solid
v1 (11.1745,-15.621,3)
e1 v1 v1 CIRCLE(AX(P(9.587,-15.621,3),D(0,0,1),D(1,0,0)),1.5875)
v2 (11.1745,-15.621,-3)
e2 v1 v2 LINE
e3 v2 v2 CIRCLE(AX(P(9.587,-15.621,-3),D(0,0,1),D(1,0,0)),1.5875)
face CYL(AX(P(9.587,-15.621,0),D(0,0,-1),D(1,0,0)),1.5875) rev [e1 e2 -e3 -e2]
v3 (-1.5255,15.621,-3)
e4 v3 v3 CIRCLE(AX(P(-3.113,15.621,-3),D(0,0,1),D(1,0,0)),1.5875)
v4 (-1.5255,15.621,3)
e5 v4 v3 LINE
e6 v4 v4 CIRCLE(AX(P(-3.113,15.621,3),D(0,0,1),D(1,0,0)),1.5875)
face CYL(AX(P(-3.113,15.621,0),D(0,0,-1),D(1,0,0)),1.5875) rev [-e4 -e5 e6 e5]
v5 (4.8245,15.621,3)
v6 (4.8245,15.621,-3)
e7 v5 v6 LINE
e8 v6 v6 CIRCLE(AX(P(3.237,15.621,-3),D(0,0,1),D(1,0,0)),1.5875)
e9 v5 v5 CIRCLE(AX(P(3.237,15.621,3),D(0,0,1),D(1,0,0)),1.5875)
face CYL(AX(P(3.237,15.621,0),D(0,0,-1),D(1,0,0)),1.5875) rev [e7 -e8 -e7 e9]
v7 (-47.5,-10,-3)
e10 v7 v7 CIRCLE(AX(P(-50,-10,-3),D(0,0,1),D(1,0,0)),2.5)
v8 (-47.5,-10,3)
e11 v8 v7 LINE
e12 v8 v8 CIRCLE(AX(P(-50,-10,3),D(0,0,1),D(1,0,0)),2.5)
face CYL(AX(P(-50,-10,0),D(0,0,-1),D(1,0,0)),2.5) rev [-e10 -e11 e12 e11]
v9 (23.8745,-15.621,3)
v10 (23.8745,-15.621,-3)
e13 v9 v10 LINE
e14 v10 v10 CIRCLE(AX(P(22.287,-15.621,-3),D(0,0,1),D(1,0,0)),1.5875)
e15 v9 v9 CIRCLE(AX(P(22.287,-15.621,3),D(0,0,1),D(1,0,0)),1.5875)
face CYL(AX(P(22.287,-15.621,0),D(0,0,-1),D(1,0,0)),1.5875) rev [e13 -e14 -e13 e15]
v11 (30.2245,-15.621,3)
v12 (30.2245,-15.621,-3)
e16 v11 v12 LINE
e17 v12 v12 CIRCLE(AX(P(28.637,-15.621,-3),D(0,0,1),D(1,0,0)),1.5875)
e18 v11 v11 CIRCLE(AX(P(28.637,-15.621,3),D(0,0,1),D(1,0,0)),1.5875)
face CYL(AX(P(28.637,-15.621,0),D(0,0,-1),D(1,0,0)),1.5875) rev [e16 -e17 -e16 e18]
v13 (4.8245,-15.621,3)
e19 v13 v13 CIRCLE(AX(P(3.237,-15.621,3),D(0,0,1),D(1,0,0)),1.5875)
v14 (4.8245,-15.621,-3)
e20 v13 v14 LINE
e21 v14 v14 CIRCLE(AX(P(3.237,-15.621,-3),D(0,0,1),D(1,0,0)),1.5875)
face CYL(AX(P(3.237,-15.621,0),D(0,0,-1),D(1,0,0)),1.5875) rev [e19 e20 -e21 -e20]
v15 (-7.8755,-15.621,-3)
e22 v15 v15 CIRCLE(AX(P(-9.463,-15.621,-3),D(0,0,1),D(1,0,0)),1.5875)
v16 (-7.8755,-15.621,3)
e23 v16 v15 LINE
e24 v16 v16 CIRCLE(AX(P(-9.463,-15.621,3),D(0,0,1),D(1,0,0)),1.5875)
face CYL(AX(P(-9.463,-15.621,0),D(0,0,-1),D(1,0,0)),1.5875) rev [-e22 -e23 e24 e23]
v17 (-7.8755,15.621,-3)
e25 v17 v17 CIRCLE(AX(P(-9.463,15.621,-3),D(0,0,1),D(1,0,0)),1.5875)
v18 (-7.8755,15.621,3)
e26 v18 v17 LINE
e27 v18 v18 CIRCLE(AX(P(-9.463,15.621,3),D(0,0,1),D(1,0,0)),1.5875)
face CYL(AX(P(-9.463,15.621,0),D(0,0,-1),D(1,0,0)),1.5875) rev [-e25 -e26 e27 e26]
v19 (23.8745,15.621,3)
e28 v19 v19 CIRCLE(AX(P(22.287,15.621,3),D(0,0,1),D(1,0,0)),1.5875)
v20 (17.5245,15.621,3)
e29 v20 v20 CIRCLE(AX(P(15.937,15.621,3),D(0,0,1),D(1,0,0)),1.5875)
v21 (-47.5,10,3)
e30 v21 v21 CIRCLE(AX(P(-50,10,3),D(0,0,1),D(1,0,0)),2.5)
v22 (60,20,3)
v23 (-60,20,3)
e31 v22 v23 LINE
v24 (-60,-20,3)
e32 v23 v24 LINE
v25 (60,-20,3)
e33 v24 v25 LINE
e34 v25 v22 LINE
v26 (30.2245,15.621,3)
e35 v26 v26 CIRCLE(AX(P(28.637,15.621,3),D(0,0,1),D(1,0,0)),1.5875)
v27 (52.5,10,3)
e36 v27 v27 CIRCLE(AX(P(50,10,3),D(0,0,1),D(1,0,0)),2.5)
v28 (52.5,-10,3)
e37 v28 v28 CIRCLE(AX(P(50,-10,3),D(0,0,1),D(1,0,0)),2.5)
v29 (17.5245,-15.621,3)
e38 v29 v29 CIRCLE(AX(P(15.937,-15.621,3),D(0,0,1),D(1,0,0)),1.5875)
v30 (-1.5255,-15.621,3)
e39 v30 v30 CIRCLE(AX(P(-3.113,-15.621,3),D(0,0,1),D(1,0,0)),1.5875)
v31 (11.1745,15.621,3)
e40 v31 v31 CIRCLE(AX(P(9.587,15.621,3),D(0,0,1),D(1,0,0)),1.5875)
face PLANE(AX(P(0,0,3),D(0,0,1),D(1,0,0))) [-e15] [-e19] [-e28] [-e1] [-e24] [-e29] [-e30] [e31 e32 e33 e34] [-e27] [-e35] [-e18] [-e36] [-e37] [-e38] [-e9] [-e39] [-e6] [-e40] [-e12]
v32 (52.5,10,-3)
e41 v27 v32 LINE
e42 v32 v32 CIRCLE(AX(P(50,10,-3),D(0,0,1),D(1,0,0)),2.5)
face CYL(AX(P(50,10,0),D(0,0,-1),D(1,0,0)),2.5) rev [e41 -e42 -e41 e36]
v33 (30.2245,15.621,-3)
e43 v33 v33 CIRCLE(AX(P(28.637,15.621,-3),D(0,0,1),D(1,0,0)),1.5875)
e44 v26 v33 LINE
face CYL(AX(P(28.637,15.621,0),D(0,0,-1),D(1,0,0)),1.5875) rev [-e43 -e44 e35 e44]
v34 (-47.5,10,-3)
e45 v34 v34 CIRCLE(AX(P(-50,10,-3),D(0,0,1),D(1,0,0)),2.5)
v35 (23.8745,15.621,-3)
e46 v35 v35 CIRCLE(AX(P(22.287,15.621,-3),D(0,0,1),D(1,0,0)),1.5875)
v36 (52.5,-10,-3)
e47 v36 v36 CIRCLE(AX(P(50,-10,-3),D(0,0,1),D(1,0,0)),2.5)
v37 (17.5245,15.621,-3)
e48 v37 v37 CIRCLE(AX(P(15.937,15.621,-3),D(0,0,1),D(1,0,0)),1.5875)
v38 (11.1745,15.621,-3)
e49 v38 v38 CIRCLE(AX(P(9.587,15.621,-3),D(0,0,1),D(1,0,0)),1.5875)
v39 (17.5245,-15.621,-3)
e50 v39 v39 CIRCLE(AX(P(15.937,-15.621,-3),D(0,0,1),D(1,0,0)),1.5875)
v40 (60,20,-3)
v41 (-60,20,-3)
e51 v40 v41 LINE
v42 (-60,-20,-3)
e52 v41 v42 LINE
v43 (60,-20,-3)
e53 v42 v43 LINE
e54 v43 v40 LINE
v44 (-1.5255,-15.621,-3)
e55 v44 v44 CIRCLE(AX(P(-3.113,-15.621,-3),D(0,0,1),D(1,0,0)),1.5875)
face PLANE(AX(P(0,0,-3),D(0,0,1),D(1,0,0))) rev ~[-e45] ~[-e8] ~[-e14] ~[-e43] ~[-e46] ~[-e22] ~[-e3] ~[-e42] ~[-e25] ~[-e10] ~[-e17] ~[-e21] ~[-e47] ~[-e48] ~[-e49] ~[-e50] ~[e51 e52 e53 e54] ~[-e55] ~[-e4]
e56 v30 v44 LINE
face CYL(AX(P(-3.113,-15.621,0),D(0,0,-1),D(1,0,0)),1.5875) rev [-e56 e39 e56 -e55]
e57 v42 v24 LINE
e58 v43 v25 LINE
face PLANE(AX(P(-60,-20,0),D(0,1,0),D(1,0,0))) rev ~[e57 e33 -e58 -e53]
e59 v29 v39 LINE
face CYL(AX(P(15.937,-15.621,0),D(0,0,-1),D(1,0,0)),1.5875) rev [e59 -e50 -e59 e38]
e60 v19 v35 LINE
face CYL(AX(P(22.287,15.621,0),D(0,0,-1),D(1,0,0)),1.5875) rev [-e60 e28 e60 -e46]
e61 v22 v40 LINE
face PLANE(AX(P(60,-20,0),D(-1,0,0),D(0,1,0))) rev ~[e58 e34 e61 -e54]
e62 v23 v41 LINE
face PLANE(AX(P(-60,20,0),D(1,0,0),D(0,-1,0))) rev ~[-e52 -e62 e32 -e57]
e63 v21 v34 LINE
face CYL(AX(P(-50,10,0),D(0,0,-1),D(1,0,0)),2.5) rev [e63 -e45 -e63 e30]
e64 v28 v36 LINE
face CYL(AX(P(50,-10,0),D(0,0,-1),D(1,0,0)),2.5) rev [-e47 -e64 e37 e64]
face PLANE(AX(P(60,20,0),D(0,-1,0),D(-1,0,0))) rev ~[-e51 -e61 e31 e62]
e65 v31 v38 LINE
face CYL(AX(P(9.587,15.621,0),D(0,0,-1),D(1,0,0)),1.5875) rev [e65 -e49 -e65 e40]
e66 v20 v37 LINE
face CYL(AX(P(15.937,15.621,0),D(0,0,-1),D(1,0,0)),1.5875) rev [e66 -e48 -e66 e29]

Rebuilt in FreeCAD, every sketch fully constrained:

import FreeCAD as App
import Part
import Sketcher
from FreeCAD import Vector

doc = App.newDocument("Part")
body = doc.addObject("PartDesign::Body", "Body")

# Sketch on XY plane
sketch1 = body.newObject("Sketcher::SketchObject", "Sketch")
sketch1.AttachmentSupport = (doc.getObject("XY_Plane"), [""])
sketch1.MapMode = "FlatFace"
sketch1.addGeometry([
    Part.LineSegment(Vector(-60, 20, 0), Vector(-60, -20, 0)),  # 0
    Part.LineSegment(Vector(-60, -20, 0), Vector(60, -20, 0)),  # 1
    Part.LineSegment(Vector(60, -20, 0), Vector(60, 20, 0)),  # 2
    Part.LineSegment(Vector(60, 20, 0), Vector(-60, 20, 0)),  # 3
    Part.Circle(Vector(-9.5, -15.6, 0), Vector(0, 0, 1), 1.6),  # 4
    Part.Circle(Vector(-3.1, -15.6, 0), Vector(0, 0, 1), 1.6),  # 5
    Part.Circle(Vector(-50, -10, 0), Vector(0, 0, 1), 2.5),  # 6
    Part.Circle(Vector(3.2, -15.6, 0), Vector(0, 0, 1), 1.6),  # 7
    Part.Circle(Vector(9.6, -15.6, 0), Vector(0, 0, 1), 1.6),  # 8
    Part.Circle(Vector(15.9, -15.6, 0), Vector(0, 0, 1), 1.6),  # 9
    Part.Circle(Vector(22.3, -15.6, 0), Vector(0, 0, 1), 1.6),  # 10
    Part.Circle(Vector(28.6, -15.6, 0), Vector(0, 0, 1), 1.6),  # 11
    Part.Circle(Vector(50, -10, 0), Vector(0, 0, 1), 2.5),  # 12
    Part.Circle(Vector(-50, 10, 0), Vector(0, 0, 1), 2.5),  # 13
    Part.Circle(Vector(-9.5, 15.6, 0), Vector(0, 0, 1), 1.6),  # 14
    Part.Circle(Vector(-3.1, 15.6, 0), Vector(0, 0, 1), 1.6),  # 15
    Part.Circle(Vector(3.2, 15.6, 0), Vector(0, 0, 1), 1.6),  # 16
    Part.Circle(Vector(9.6, 15.6, 0), Vector(0, 0, 1), 1.6),  # 17
    Part.Circle(Vector(15.9, 15.6, 0), Vector(0, 0, 1), 1.6),  # 18
    Part.Circle(Vector(22.3, 15.6, 0), Vector(0, 0, 1), 1.6),  # 19
    Part.Circle(Vector(28.6, 15.6, 0), Vector(0, 0, 1), 1.6),  # 20
    Part.Circle(Vector(50, 10, 0), Vector(0, 0, 1), 2.5),  # 21
], False)
sketch1.addConstraint([
    Sketcher.Constraint("Coincident", 0, 2, 1, 1),
    Sketcher.Constraint("Coincident", 1, 2, 2, 1),
    Sketcher.Constraint("Coincident", 2, 2, 3, 1),
    Sketcher.Constraint("Coincident", 3, 2, 0, 1),
    Sketcher.Constraint("Vertical", 0),
    Sketcher.Constraint("Horizontal", 1),
    Sketcher.Constraint("Vertical", 2),
    Sketcher.Constraint("Horizontal", 3),
    Sketcher.Constraint("Equal", 4, 5),
    Sketcher.Constraint("Equal", 5, 7),
    Sketcher.Constraint("Equal", 7, 8),
    Sketcher.Constraint("Equal", 8, 9),
    Sketcher.Constraint("Equal", 9, 10),
    Sketcher.Constraint("Equal", 10, 11),
    Sketcher.Constraint("Equal", 6, 12),
    Sketcher.Constraint("Equal", 12, 13),
    Sketcher.Constraint("Equal", 11, 14),
    Sketcher.Constraint("Equal", 14, 15),
    Sketcher.Constraint("Equal", 15, 16),
    Sketcher.Constraint("Equal", 16, 17),
    Sketcher.Constraint("Equal", 17, 18),
    Sketcher.Constraint("Equal", 18, 19),
    Sketcher.Constraint("Equal", 19, 20),
    Sketcher.Constraint("Equal", 13, 21),
    Sketcher.Constraint("Symmetric", 12, 3, 13, 3, -1, 1),
    Sketcher.Constraint("Symmetric", 6, 3, 21, 3, -1, 1),
    Sketcher.Constraint("Symmetric", 0, 2, 2, 2, -1, 1),
    Sketcher.Constraint("Symmetric", 6, 3, 12, 3, -2),
    Sketcher.Constraint("Symmetric", 4, 3, 14, 3, -1),
    Sketcher.Constraint("Symmetric", 5, 3, 15, 3, -1),
    Sketcher.Constraint("Symmetric", 7, 3, 16, 3, -1),
    Sketcher.Constraint("Symmetric", 8, 3, 17, 3, -1),
    Sketcher.Constraint("Symmetric", 9, 3, 18, 3, -1),
    Sketcher.Constraint("Symmetric", 10, 3, 19, 3, -1),
    Sketcher.Constraint("Symmetric", 11, 3, 20, 3, -1),
    Sketcher.Constraint("Horizontal", 4, 3, 5, 3),
    Sketcher.Constraint("Horizontal", 5, 3, 7, 3),
    Sketcher.Constraint("Horizontal", 7, 3, 8, 3),
    Sketcher.Constraint("Horizontal", 8, 3, 9, 3),
    Sketcher.Constraint("Horizontal", 9, 3, 10, 3),
    Sketcher.Constraint("Horizontal", 10, 3, 11, 3),
    Sketcher.Constraint("Diameter", 6, 5.0),
    Sketcher.Constraint("DistanceX", 1, 1, 1, 2, 120.0),
    Sketcher.Constraint("DistanceY", 0, 2, 0, 1, 40.0),
    Sketcher.Constraint("Diameter", 4, 3.175),
    Sketcher.Constraint("DistanceY", 6, 3, -1, 1, 10.0),
    Sketcher.Constraint("DistanceX", 0, 2, 6, 3, 10.0),
    Sketcher.Constraint("DistanceX", 4, 3, 5, 3, 6.35),
    Sketcher.Constraint("DistanceX", 5, 3, 7, 3, 6.35),
    Sketcher.Constraint("DistanceX", 7, 3, 8, 3, 6.35),
    Sketcher.Constraint("DistanceX", 8, 3, 9, 3, 6.35),
    Sketcher.Constraint("DistanceX", 9, 3, 10, 3, 6.35),
    Sketcher.Constraint("DistanceX", 10, 3, 11, 3, 6.35),
    Sketcher.Constraint("DistanceY", 4, 3, 14, 3, 31.242),
    Sketcher.Constraint("DistanceX", 11, 3, 1, 2, 31.363),
])
pad1 = body.newObject("PartDesign::Pad", "Pad")
pad1.Profile = sketch1
pad1.Length = 6
pad1.Midplane = True

doc.recompute()
